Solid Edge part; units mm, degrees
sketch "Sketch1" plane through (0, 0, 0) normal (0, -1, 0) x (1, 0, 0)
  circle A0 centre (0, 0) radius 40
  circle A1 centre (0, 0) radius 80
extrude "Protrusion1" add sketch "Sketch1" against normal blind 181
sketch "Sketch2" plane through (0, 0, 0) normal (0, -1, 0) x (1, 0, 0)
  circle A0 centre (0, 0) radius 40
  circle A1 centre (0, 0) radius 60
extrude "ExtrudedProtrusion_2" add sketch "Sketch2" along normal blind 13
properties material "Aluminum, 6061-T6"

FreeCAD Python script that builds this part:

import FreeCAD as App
import Part
import Sketcher

V = App.Vector
Q = App.Units.Quantity

doc = App.newDocument("Part")
body = doc.addObject("PartDesign::Body", "Body")

# Sketch on XZ plane
sketch1 = doc.addObject("Sketcher::SketchObject", "Sketch")
body.addObject(sketch1)
sketch1.AttachmentSupport = (doc.XZ_Plane, [""])
sketch1.MapMode = "FlatFace"
sketch1.addGeometry(Part.Circle(V(0, 0, 0), V(0, 0, 1), 80), False)
sketch1.addGeometry(Part.Circle(V(0, 0, 0), V(0, 0, 1), 40), False)
sketch1.addConstraint(Sketcher.Constraint("Coincident", 0, 3, -1, 1))
sketch1.addConstraint(Sketcher.Constraint("Coincident", 1, 3, -1, 1))
sketch1.addConstraint(Sketcher.Constraint("Diameter", 0, Q("160 mm")))
sketch1.addConstraint(Sketcher.Constraint("Diameter", 1, Q("80 mm")))
pad1 = doc.addObject("PartDesign::Pad", "Pad")
body.addObject(pad1)
pad1.Profile = sketch1
pad1.Length = 181
pad1.Reversed = True

# Sketch on XZ plane
sketch2 = doc.addObject("Sketcher::SketchObject", "Sketch001")
body.addObject(sketch2)
sketch2.AttachmentSupport = (doc.XZ_Plane, [""])
sketch2.MapMode = "FlatFace"
sketch2.addGeometry(Part.Circle(V(0, 0, 0), V(0, 0, 1), 60), False)
sketch2.addGeometry(Part.Circle(V(0, 0, 0), V(0, 0, 1), 40), False)
sketch2.addConstraint(Sketcher.Constraint("Coincident", 0, 3, -1, 1))
sketch2.addConstraint(Sketcher.Constraint("Coincident", 1, 3, -1, 1))
sketch2.addConstraint(Sketcher.Constraint("Diameter", 0, Q("120 mm")))
sketch2.addConstraint(Sketcher.Constraint("Diameter", 1, Q("80 mm")))
pad2 = doc.addObject("PartDesign::Pad", "Pad001")
body.addObject(pad2)
pad2.Profile = sketch2
pad2.Length = 13

doc.recompute()
